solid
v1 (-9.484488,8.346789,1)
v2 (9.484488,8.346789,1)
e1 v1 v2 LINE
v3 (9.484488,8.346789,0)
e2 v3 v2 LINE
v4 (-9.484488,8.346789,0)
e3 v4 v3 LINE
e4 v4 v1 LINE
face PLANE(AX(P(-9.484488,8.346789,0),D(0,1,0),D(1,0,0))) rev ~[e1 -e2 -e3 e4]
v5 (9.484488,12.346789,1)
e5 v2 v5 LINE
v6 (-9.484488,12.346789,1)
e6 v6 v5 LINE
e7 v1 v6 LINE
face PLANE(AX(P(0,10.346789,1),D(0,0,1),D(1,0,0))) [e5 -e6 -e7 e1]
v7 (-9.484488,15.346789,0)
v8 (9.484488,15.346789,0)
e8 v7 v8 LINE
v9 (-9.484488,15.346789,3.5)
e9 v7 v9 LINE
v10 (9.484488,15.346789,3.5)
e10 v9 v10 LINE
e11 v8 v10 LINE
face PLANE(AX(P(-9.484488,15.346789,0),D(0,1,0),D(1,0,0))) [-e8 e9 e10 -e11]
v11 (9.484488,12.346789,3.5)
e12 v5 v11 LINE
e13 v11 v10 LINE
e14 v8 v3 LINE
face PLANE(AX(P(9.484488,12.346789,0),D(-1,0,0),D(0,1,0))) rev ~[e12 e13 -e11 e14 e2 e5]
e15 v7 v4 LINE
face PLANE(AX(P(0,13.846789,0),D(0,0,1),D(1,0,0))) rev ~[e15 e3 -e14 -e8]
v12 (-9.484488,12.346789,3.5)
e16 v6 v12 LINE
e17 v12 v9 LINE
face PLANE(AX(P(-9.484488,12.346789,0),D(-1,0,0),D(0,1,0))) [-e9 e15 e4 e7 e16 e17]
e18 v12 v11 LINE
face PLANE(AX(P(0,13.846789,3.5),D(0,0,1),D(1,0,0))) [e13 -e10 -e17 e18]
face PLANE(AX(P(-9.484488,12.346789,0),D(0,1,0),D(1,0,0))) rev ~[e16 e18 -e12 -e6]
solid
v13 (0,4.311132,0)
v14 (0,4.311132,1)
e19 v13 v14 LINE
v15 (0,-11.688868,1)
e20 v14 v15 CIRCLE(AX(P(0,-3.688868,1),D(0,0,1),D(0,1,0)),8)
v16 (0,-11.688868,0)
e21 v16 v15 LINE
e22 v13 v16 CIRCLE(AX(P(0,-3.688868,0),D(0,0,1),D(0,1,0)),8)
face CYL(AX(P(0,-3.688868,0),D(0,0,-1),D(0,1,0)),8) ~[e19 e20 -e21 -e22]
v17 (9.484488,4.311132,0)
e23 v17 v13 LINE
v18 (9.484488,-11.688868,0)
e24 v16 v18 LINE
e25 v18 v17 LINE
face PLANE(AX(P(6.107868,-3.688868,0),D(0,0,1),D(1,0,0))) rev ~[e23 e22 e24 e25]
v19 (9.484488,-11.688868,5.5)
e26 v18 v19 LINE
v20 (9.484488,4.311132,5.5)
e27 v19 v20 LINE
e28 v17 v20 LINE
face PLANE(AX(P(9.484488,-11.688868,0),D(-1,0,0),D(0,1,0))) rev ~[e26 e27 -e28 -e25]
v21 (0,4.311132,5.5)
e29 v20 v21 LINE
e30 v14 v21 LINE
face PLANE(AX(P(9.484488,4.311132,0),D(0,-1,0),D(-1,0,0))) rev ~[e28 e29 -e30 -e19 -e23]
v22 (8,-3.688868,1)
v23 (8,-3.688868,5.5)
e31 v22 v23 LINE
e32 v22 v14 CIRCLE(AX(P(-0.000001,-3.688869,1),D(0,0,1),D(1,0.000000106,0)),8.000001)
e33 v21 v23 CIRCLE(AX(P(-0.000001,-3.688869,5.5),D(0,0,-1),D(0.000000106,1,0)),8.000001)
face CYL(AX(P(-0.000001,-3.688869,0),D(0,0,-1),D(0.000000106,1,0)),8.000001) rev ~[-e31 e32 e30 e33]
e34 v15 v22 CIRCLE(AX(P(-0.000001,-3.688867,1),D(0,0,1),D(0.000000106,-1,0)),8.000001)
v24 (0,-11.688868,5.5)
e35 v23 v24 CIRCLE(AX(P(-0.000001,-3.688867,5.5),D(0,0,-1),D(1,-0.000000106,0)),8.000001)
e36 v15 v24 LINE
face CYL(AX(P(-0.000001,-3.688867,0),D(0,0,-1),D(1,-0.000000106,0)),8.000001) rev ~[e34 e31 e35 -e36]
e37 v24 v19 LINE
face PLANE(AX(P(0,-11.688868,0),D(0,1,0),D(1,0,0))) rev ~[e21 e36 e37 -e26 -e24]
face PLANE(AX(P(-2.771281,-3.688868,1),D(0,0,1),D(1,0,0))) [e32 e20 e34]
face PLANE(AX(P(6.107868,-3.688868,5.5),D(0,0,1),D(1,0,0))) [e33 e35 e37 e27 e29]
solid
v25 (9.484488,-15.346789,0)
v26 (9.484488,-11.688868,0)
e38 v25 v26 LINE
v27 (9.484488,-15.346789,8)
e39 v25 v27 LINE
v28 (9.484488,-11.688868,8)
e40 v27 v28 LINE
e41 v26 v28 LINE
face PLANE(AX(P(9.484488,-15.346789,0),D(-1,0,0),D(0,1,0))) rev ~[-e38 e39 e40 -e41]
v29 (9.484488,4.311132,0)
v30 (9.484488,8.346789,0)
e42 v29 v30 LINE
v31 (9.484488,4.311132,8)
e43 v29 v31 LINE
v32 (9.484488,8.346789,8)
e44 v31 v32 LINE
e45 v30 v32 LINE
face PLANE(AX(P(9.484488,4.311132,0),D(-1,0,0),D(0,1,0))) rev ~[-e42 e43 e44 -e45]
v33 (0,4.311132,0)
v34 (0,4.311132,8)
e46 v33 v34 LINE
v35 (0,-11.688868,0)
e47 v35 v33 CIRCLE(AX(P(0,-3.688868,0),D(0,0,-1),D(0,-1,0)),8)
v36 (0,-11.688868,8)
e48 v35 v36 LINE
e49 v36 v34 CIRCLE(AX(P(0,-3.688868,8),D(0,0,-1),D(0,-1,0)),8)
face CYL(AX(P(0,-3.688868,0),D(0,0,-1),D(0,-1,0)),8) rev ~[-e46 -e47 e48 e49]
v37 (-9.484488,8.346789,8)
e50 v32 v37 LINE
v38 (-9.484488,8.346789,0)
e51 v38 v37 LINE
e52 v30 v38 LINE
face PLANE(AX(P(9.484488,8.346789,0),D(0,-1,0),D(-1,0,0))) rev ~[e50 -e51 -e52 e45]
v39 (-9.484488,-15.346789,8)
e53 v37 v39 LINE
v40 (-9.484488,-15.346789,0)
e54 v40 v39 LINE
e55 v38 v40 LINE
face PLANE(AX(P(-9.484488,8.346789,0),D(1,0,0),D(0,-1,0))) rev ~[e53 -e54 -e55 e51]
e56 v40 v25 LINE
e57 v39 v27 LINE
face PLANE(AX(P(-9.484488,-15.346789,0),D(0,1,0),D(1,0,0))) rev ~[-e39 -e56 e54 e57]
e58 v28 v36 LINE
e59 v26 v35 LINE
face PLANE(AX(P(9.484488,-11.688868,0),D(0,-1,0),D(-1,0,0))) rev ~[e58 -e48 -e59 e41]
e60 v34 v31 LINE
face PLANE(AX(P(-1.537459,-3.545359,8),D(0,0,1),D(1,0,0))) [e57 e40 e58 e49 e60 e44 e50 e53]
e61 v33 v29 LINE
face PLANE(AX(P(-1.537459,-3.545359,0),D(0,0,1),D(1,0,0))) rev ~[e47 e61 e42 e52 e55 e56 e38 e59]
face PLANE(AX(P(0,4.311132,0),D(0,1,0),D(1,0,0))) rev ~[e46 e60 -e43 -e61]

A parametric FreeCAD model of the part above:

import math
import FreeCAD as App
import Part
import Sketcher
from FreeCAD import Vector
Q = App.Units.Quantity

doc = App.newDocument("Part")
body = doc.addObject("PartDesign::Body", "Body")
body.AllowCompound = True

# Sketch on XY plane
sketch1 = doc.addObject("Sketcher::SketchObject", "Sketch")
body.addObject(sketch1)
sketch1.AttachmentSupport = (doc.XY_Plane, [""])
sketch1.MapMode = "FlatFace"
sketch1.addGeometry([
    Part.ArcOfCircle(Part.Circle(Vector(0, -3.7, 0), Vector(0, 0, 1), 8), math.radians(90), math.radians(270)),  # 0
    Part.ArcOfCircle(Part.Circle(Vector(0, -3.7, 0), Vector(0, 0, 1), 8), math.radians(-90), math.radians(0)),  # 1
    Part.ArcOfCircle(Part.Circle(Vector(0, -3.7, 0), Vector(0, 0, 1), 8), math.radians(0), math.radians(90)),  # 2
    Part.LineSegment(Vector(-9.5, 12.3, 0), Vector(-9.5, 8.3, 0)),  # 3
    Part.LineSegment(Vector(-9.5, 8.3, 0), Vector(9.5, 8.3, 0)),  # 4
    Part.LineSegment(Vector(9.5, 8.3, 0), Vector(9.5, 12.3, 0)),  # 5
    Part.LineSegment(Vector(9.5, 12.3, 0), Vector(-9.5, 12.3, 0)),  # 6
], False)
sketch1.addConstraint([
    Sketcher.Constraint("Tangent", 0, 2, 1, 1),
    Sketcher.Constraint("Tangent", 1, 2, 2, 1),
    Sketcher.Constraint("Tangent", 2, 2, 0, 1),
    Sketcher.Constraint("Coincident", 3, 2, 4, 1),
    Sketcher.Constraint("Coincident", 4, 2, 5, 1),
    Sketcher.Constraint("Coincident", 5, 2, 6, 1),
    Sketcher.Constraint("Coincident", 6, 2, 3, 1),
    Sketcher.Constraint("Vertical", 3),
    Sketcher.Constraint("Horizontal", 4),
    Sketcher.Constraint("Vertical", 5),
    Sketcher.Constraint("Horizontal", 6),
    Sketcher.Constraint("PointOnObject", 0, 3, -2),
    Sketcher.Constraint("PointOnObject", 0, 2, -2),
    Sketcher.Constraint("PointOnObject", 2, 2, -2),
    Sketcher.Constraint("Horizontal", 2, 3, 1, 2),
    Sketcher.Constraint("Radius", 0, Q("8 mm")),
    Sketcher.Constraint("DistanceY", 3, 2, 3, 1, Q("4 mm")),
    Sketcher.Constraint("DistanceX", 4, 1, 4, 2, Q("18.968976 mm")),
    Sketcher.Constraint("DistanceY", 2, 3, -1, 1, Q("3.688869 mm")),
    Sketcher.Constraint("DistanceX", 3, 2, -1, 1, Q("9.484488 mm")),
    Sketcher.Constraint("DistanceY", -1, 1, 3, 2, Q("8.346789 mm")),
])
pad1 = doc.addObject("PartDesign::Pad", "Pad")
body.addObject(pad1)
pad1.Profile = sketch1
pad1.Length = 1

# Sketch on XY plane
sketch2 = doc.addObject("Sketcher::SketchObject", "Sketch001")
body.addObject(sketch2)
sketch2.AttachmentSupport = (doc.XY_Plane, [""])
sketch2.MapMode = "FlatFace"
sketch2.addGeometry([
    Part.LineSegment(Vector(9, -12, 0), Vector(9, 4, 0)),  # 0
    Part.LineSegment(Vector(9, 4, 0), Vector(0, 4, 0)),  # 1
    Part.ArcOfCircle(Part.Circle(Vector(0, -4, 0), Vector(0, 0, 1), 8), math.radians(0), math.radians(90)),  # 2
    Part.ArcOfCircle(Part.Circle(Vector(0, -4, 0), Vector(0, 0, 1), 8), math.radians(-90), math.radians(0)),  # 3
    Part.LineSegment(Vector(0, -12, 0), Vector(9, -12, 0)),  # 4
], False)
sketch2.addConstraint([
    Sketcher.Constraint("Coincident", 0, 2, 1, 1),
    Sketcher.Constraint("Tangent", 1, 2, 2, 2),
    Sketcher.Constraint("Tangent", 2, 1, 3, 2),
    Sketcher.Constraint("Tangent", 3, 1, 4, 1),
    Sketcher.Constraint("Coincident", 4, 2, 0, 1),
    Sketcher.Constraint("Vertical", 0),
    Sketcher.Constraint("Horizontal", 1),
    Sketcher.Constraint("Horizontal", 4),
    Sketcher.Constraint("Equal", 2, 3),
    Sketcher.Constraint("PointOnObject", 2, 3, -2),
    Sketcher.Constraint("Horizontal", 3, 3, 2, 1),
    Sketcher.Constraint("Radius", 2, Q("8.000001 mm")),
    Sketcher.Constraint("DistanceX", 1, 2, 1, 1, Q("9.484488 mm")),
    Sketcher.Constraint("DistanceY", 2, 3, -1, 1, Q("3.688869 mm")),
])
pad2 = doc.addObject("PartDesign::Pad", "Pad001")
body.addObject(pad2)
pad2.Profile = sketch2
pad2.Length = 5.5

# Sketch on XY plane
sketch3 = doc.addObject("Sketcher::SketchObject", "Sketch002")
body.addObject(sketch3)
sketch3.AttachmentSupport = (doc.XY_Plane, [""])
sketch3.MapMode = "FlatFace"
sketch3.addGeometry([
    Part.LineSegment(Vector(-9.5, 15.3, 0), Vector(-9.5, 12.3, 0)),
    Part.LineSegment(Vector(-9.5, 12.3, 0), Vector(9.5, 12.3, 0)),
    Part.LineSegment(Vector(9.5, 12.3, 0), Vector(9.5, 15.3, 0)),
    Part.LineSegment(Vector(9.5, 15.3, 0), Vector(-9.5, 15.3, 0)),
], False)
sketch3.addConstraint([
    Sketcher.Constraint("Coincident", 0, 2, 1, 1),
    Sketcher.Constraint("Coincident", 1, 2, 2, 1),
    Sketcher.Constraint("Coincident", 2, 2, 3, 1),
    Sketcher.Constraint("Coincident", 3, 2, 0, 1),
    Sketcher.Constraint("Vertical", 0),
    Sketcher.Constraint("Horizontal", 1),
    Sketcher.Constraint("Vertical", 2),
    Sketcher.Constraint("Horizontal", 3),
    Sketcher.Constraint("DistanceY", 0, 2, 0, 1, Q("3 mm")),
    Sketcher.Constraint("DistanceX", 1, 1, 1, 2, Q("18.968976 mm")),
    Sketcher.Constraint("DistanceX", 0, 2, -1, 1, Q("9.484488 mm")),
    Sketcher.Constraint("DistanceY", -1, 1, 0, 2, Q("12.346789 mm")),
])
pad3 = doc.addObject("PartDesign::Pad", "Pad002")
body.addObject(pad3)
pad3.Profile = sketch3
pad3.Length = 3.5
body2 = doc.addObject("PartDesign::Body", "Body001")

# Sketch on XY plane
sketch4 = doc.addObject("Sketcher::SketchObject", "Sketch003")
body2.addObject(sketch4)
sketch4.AttachmentSupport = (doc.getObject("XY_Plane001"), [""])
sketch4.MapMode = "FlatFace"
sketch4.addGeometry([
    Part.LineSegment(Vector(9.5, 4.3, 0), Vector(9.5, 8.3, 0)),  # 0
    Part.LineSegment(Vector(9.5, 8.3, 0), Vector(-9.5, 8.3, 0)),  # 1
    Part.LineSegment(Vector(-9.5, 8.3, 0), Vector(-9.5, -15.3, 0)),  # 2
    Part.LineSegment(Vector(-9.5, -15.3, 0), Vector(9.5, -15.3, 0)),  # 3
    Part.LineSegment(Vector(9.5, -15.3, 0), Vector(9.5, -11.7, 0)),  # 4
    Part.LineSegment(Vector(9.5, -11.7, 0), Vector(0, -11.7, 0)),  # 5
    Part.ArcOfCircle(Part.Circle(Vector(0, -3.7, 0), Vector(0, 0, 1), 8), math.radians(90), math.radians(270)),  # 6
    Part.LineSegment(Vector(0, 4.3, 0), Vector(9.5, 4.3, 0)),  # 7
], False)
sketch4.addConstraint([
    Sketcher.Constraint("Coincident", 0, 2, 1, 1),
    Sketcher.Constraint("Coincident", 1, 2, 2, 1),
    Sketcher.Constraint("Coincident", 2, 2, 3, 1),
    Sketcher.Constraint("Coincident", 3, 2, 4, 1),
    Sketcher.Constraint("Coincident", 4, 2, 5, 1),
    Sketcher.Constraint("Tangent", 5, 2, 6, 2),
    Sketcher.Constraint("Tangent", 6, 1, 7, 1),
    Sketcher.Constraint("Coincident", 7, 2, 0, 1),
    Sketcher.Constraint("Vertical", 0),
    Sketcher.Constraint("Horizontal", 1),
    Sketcher.Constraint("Vertical", 2),
    Sketcher.Constraint("Horizontal", 3),
    Sketcher.Constraint("Vertical", 4),
    Sketcher.Constraint("Horizontal", 5),
    Sketcher.Constraint("Horizontal", 7),
    Sketcher.Constraint("PointOnObject", 6, 3, -2),
    Sketcher.Constraint("Vertical", 0, 2, 3, 2),
    Sketcher.Constraint("Radius", 6, Q("8 mm")),
    Sketcher.Constraint("DistanceX", 5, 2, 5, 1, Q("9.484488 mm")),
    Sketcher.Constraint("DistanceY", 4, 1, 4, 2, Q("3.657921 mm")),
    Sketcher.Constraint("DistanceX", 1, 2, 1, 1, Q("18.968976 mm")),
    Sketcher.Constraint("DistanceY", 0, 1, 0, 2, Q("4.035657 mm")),
    Sketcher.Constraint("DistanceY", -1, 1, 0, 2, Q("8.346789 mm")),
])
pad4 = doc.addObject("PartDesign::Pad", "Pad003")
body2.addObject(pad4)
pad4.Profile = sketch4
pad4.Length = 8

doc.recompute()
